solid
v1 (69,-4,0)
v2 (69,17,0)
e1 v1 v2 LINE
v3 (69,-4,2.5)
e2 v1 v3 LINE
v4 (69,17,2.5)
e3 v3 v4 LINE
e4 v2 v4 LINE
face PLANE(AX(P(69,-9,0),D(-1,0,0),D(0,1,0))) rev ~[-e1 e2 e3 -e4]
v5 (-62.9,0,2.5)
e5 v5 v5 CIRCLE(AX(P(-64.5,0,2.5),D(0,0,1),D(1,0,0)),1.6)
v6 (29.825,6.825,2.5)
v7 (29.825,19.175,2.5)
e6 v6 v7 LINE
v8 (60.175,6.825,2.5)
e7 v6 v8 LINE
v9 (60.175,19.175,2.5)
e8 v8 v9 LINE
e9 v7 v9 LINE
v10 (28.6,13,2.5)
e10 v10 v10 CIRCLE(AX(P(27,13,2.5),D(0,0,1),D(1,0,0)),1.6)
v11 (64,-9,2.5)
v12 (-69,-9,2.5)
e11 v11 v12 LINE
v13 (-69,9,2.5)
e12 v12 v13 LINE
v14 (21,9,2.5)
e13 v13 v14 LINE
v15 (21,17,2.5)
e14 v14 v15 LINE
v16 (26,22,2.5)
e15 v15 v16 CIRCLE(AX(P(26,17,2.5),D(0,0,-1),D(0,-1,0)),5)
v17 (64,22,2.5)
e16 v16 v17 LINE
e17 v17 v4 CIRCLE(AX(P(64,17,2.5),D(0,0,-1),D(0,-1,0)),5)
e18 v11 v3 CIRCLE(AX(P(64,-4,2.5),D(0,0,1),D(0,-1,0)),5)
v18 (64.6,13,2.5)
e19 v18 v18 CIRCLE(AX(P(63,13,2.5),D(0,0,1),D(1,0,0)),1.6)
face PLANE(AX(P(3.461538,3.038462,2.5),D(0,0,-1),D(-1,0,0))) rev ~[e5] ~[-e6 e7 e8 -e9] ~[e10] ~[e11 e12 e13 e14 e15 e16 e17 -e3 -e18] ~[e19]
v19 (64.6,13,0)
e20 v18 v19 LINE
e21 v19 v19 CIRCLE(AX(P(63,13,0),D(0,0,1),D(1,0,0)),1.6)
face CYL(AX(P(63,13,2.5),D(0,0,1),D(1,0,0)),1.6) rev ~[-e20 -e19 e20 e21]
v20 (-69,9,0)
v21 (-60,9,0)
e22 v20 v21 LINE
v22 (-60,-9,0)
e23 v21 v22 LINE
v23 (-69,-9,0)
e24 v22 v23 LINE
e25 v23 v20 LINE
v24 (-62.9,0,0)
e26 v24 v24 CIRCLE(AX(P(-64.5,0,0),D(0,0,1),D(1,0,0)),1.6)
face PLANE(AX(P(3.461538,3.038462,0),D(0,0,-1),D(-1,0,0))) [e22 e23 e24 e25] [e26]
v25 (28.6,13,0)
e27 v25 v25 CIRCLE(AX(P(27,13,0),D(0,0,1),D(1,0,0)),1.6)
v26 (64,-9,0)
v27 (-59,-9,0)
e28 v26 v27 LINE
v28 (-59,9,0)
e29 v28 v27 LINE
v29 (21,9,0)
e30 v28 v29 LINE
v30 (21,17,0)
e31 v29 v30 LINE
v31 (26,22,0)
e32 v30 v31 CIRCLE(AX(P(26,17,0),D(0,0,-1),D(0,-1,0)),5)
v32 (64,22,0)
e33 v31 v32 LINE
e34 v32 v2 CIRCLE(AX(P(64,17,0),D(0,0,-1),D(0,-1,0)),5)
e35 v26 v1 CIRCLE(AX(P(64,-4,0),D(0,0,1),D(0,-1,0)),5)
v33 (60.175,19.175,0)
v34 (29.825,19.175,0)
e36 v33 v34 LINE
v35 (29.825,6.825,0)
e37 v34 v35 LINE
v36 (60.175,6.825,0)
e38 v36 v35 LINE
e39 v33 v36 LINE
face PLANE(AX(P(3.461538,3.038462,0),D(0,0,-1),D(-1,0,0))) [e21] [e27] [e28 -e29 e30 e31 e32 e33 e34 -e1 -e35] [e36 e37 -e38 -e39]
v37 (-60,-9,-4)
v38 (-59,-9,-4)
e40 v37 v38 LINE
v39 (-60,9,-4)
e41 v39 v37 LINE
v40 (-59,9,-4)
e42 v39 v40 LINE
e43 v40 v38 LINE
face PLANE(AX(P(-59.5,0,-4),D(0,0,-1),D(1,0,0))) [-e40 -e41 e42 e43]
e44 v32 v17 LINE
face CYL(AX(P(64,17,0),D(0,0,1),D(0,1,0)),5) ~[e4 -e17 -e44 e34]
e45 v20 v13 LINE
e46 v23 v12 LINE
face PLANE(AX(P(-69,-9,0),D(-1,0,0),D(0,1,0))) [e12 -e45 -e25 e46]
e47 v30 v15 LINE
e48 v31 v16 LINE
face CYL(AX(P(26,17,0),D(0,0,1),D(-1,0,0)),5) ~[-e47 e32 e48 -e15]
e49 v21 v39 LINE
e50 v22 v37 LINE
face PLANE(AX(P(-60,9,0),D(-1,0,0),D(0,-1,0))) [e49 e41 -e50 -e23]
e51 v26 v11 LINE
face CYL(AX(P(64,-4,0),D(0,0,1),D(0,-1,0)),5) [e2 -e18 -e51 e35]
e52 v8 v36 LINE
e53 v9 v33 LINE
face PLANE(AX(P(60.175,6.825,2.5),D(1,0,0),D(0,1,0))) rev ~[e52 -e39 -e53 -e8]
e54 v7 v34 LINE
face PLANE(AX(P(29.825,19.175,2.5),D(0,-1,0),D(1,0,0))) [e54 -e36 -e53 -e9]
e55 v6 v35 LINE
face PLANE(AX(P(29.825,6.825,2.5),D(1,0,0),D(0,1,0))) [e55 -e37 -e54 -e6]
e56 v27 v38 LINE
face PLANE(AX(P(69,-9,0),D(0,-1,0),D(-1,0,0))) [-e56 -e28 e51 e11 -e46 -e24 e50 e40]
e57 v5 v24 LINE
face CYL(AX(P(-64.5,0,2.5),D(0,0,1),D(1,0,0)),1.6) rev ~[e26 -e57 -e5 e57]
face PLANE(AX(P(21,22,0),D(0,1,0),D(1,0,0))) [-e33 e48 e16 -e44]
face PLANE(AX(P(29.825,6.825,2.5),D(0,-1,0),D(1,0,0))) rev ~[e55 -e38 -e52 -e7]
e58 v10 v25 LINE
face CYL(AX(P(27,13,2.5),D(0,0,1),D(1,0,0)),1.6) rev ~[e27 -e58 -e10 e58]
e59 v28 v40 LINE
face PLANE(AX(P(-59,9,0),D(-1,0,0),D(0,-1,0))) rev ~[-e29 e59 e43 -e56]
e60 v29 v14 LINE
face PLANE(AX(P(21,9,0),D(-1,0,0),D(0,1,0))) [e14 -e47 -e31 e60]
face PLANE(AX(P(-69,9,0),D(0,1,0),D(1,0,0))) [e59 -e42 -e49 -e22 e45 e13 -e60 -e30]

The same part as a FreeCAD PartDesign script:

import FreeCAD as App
import Part
import Sketcher
Q = App.Units.Quantity


def edges_at(feature, points):
    """Names of the edges that pass closest to the given points."""
    edges = feature.Shape.Edges
    near = lambda p: min(range(len(edges)), key=lambda i: edges[i].distToShape(Part.Vertex(*p))[0])
    return sorted({f"Edge{near(p) + 1}" for p in points})

doc = App.newDocument("Part")
body = doc.addObject("PartDesign::Body", "Body")

# Sketch on XY plane
sketch1 = body.newObject("Sketcher::SketchObject", "Sketch")
sketch1.AttachmentSupport = (doc.getObject("XY_Plane"), [""])
sketch1.MapMode = "FlatFace"
sketch1.addGeometry([
    Part.LineSegment(App.Vector(21, 9, 0), App.Vector(-69, 9, 0)),  # 0
    Part.LineSegment(App.Vector(-69, 9, 0), App.Vector(-69, -9, 0)),  # 1
    Part.LineSegment(App.Vector(-69, -9, 0), App.Vector(69, -9, 0)),  # 2
    Part.LineSegment(App.Vector(69, -9, 0), App.Vector(69, 22, 0)),  # 3
    Part.LineSegment(App.Vector(69, 22, 0), App.Vector(21, 22, 0)),  # 4
    Part.LineSegment(App.Vector(21, 22, 0), App.Vector(21, 9, 0)),  # 5
], False)
sketch1.addConstraint([
    Sketcher.Constraint("Coincident", 0, 2, 1, 1),
    Sketcher.Constraint("Coincident", 1, 2, 2, 1),
    Sketcher.Constraint("Coincident", 2, 2, 3, 1),
    Sketcher.Constraint("Coincident", 3, 2, 4, 1),
    Sketcher.Constraint("Coincident", 4, 2, 5, 1),
    Sketcher.Constraint("Coincident", 5, 2, 0, 1),
    Sketcher.Constraint("Horizontal", 0),
    Sketcher.Constraint("Vertical", 1),
    Sketcher.Constraint("Horizontal", 2),
    Sketcher.Constraint("Vertical", 3),
    Sketcher.Constraint("Horizontal", 4),
    Sketcher.Constraint("Vertical", 5),
    Sketcher.Constraint("Symmetric", 0, 2, 2, 2, -1, 1),
    Sketcher.Constraint("DistanceX", 0, 2, 0, 1, Q("90 mm")),
    Sketcher.Constraint("DistanceX", 2, 1, 2, 2, Q("138 mm")),
    Sketcher.Constraint("DistanceY", 1, 2, 1, 1, Q("18 mm")),
    Sketcher.Constraint("DistanceY", 3, 1, 3, 2, Q("31 mm")),
])
pad1 = body.newObject("PartDesign::Pad", "Pad")
pad1.Profile = sketch1
pad1.Length = 2.5

# Sketch on XY plane
sketch2 = body.newObject("Sketcher::SketchObject", "Sketch001")
sketch2.AttachmentSupport = (doc.getObject("XY_Plane"), [""])
sketch2.MapMode = "FlatFace"
sketch2.AttachmentOffset = App.Placement(App.Vector(0, 0, 2.5), App.Rotation())
sketch2.addGeometry([
    Part.Circle(App.Vector(-64.5, 0, 0), App.Vector(0, 0, 1), 1.6),  # 0
    Part.Circle(App.Vector(27, 13, 0), App.Vector(0, 0, 1), 1.6),  # 1
    Part.Circle(App.Vector(63, 13, 0), App.Vector(0, 0, 1), 1.6),  # 2
    Part.LineSegment(App.Vector(29.8, 19.2, 0), App.Vector(29.8, 6.8, 0)),  # 3
    Part.LineSegment(App.Vector(29.8, 6.8, 0), App.Vector(60.2, 6.8, 0)),  # 4
    Part.LineSegment(App.Vector(60.2, 6.8, 0), App.Vector(60.2, 19.2, 0)),  # 5
    Part.LineSegment(App.Vector(60.2, 19.2, 0), App.Vector(29.8, 19.2, 0)),  # 6
], False)
sketch2.addConstraint([
    Sketcher.Constraint("Coincident", 3, 2, 4, 1),
    Sketcher.Constraint("Coincident", 4, 2, 5, 1),
    Sketcher.Constraint("Coincident", 5, 2, 6, 1),
    Sketcher.Constraint("Coincident", 6, 2, 3, 1),
    Sketcher.Constraint("Vertical", 3),
    Sketcher.Constraint("Horizontal", 4),
    Sketcher.Constraint("Vertical", 5),
    Sketcher.Constraint("Horizontal", 6),
    Sketcher.Constraint("Equal", 0, 1),
    Sketcher.Constraint("Equal", 1, 2),
    Sketcher.Constraint("PointOnObject", 0, 3, -1),
    Sketcher.Constraint("Horizontal", 1, 3, 2, 3),
    Sketcher.Constraint("Diameter", 0, Q("3.2 mm")),
    Sketcher.Constraint("DistanceX", -1, 1, 1, 3, Q("27 mm")),
    Sketcher.Constraint("DistanceY", -1, 1, 1, 3, Q("13 mm")),
    Sketcher.Constraint("DistanceX", -1, 1, 2, 3, Q("63 mm")),
    Sketcher.Constraint("DistanceX", 4, 1, 4, 2, Q("30.35 mm")),
    Sketcher.Constraint("DistanceY", 3, 2, 3, 1, Q("12.35 mm")),
    Sketcher.Constraint("DistanceX", 0, 3, -1, 1, Q("64.5 mm")),
    Sketcher.Constraint("DistanceX", -1, 1, 3, 2, Q("29.825 mm")),
    Sketcher.Constraint("DistanceY", -1, 1, 3, 2, Q("6.825 mm")),
])
pocket1 = body.newObject("PartDesign::Pocket", "Pocket")
pocket1.Profile = sketch2
pocket1.Length = 5

# Sketch on XY plane
sketch3 = body.newObject("Sketcher::SketchObject", "Sketch002")
sketch3.AttachmentSupport = (doc.getObject("XY_Plane"), [""])
sketch3.MapMode = "FlatFace"
sketch3.addGeometry([
    Part.LineSegment(App.Vector(-60, -9, 0), App.Vector(-60, 9, 0)),
    Part.LineSegment(App.Vector(-60, 9, 0), App.Vector(-59, 9, 0)),
    Part.LineSegment(App.Vector(-59, 9, 0), App.Vector(-59, -9, 0)),
    Part.LineSegment(App.Vector(-59, -9, 0), App.Vector(-60, -9, 0)),
], False)
sketch3.addConstraint([
    Sketcher.Constraint("Coincident", 0, 2, 1, 1),
    Sketcher.Constraint("Coincident", 1, 2, 2, 1),
    Sketcher.Constraint("Coincident", 2, 2, 3, 1),
    Sketcher.Constraint("Coincident", 3, 2, 0, 1),
    Sketcher.Constraint("Vertical", 0),
    Sketcher.Constraint("Horizontal", 1),
    Sketcher.Constraint("Vertical", 2),
    Sketcher.Constraint("Horizontal", 3),
    Sketcher.Constraint("DistanceX", 1, 1, 1, 2, Q("1 mm")),
    Sketcher.Constraint("DistanceY", 0, 1, 0, 2, Q("18 mm")),
    Sketcher.Constraint("DistanceX", 0, 2, -1, 1, Q("60 mm")),
    Sketcher.Constraint("DistanceY", -1, 1, 0, 2, Q("9 mm")),
])
pad2 = body.newObject("PartDesign::Pad", "Pad001")
pad2.Profile = sketch3
pad2.Length = 4
pad2.Reversed = True
doc.recompute()

fillet = body.newObject("PartDesign::Fillet", "Fillet")
fillet.Base = (pad2, edges_at(pad2, [(69, 22, 1.25), (21, 22, 1.25), (69, -9, 1.25)]))
fillet.Radius = 5

doc.recompute()
